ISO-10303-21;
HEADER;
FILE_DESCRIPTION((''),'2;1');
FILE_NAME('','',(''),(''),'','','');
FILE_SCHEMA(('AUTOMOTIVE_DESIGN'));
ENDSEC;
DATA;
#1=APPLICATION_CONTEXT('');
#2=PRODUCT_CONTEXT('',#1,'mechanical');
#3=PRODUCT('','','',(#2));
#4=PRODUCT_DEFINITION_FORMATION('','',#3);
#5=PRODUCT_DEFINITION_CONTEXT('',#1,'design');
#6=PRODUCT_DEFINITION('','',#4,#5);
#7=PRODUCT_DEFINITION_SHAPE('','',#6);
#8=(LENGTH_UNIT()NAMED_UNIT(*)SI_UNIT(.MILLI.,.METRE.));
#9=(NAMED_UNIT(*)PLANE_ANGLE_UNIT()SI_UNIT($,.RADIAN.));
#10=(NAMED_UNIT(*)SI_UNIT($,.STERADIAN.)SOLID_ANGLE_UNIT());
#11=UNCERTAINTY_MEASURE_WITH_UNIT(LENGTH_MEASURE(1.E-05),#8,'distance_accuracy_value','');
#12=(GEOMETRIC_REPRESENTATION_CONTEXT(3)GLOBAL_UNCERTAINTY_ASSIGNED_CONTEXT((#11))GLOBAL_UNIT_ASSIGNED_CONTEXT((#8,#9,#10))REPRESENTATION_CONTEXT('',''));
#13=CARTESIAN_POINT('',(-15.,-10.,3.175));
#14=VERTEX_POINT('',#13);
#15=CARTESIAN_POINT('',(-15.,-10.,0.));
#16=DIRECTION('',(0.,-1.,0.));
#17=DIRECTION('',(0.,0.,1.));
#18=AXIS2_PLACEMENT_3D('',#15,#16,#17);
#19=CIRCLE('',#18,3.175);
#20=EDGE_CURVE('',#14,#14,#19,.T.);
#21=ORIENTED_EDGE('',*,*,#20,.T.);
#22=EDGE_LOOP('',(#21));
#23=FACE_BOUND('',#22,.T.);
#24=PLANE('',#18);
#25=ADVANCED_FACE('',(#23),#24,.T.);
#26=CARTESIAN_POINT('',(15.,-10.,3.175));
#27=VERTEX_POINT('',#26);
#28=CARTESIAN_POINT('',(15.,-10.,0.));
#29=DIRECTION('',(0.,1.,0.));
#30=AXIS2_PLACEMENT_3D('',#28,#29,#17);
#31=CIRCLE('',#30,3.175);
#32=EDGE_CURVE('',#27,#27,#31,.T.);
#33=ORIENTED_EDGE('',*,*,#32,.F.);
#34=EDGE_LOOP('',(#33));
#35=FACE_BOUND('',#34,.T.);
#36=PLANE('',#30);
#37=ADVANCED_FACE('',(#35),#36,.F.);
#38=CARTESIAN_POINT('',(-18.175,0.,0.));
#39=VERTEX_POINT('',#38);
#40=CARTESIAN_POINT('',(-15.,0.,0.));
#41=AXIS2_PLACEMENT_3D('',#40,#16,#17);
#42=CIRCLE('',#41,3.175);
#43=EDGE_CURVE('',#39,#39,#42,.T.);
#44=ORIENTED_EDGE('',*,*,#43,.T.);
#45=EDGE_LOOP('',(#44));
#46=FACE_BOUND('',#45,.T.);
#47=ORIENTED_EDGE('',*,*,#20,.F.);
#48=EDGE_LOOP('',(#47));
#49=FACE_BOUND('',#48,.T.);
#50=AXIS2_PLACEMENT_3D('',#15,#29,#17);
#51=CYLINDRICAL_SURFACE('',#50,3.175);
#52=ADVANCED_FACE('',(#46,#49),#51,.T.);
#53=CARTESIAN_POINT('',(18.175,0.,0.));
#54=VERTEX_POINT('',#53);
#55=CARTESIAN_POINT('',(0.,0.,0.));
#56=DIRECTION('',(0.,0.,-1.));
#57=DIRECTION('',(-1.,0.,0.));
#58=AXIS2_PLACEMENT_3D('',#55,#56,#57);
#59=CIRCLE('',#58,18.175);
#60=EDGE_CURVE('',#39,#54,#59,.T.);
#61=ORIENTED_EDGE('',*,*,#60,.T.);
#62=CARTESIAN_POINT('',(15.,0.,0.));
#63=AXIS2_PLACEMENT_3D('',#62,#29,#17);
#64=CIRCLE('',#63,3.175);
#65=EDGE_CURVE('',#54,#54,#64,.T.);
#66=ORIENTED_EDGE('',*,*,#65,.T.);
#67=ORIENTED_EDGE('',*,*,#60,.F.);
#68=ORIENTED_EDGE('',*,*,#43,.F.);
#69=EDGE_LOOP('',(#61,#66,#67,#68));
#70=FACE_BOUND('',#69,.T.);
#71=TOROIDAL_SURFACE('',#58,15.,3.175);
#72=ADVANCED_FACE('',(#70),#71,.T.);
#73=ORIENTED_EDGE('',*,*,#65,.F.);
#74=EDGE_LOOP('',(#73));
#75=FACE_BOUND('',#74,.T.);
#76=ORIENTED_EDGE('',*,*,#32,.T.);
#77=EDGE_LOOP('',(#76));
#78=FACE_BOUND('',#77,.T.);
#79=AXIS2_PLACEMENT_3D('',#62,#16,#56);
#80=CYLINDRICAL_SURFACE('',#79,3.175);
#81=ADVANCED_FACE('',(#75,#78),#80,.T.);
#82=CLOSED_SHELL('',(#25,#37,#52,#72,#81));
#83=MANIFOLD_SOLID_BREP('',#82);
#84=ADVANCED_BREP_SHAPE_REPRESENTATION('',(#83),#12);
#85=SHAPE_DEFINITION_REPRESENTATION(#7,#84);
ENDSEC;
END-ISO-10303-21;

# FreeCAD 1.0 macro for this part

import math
import FreeCAD as App
import Part
import Sketcher

doc = App.newDocument("Part")
body = doc.addObject("PartDesign::Body", "Body")

sketch1 = body.newObject("Sketcher::SketchObject", "Sketch")
sketch1.AttachmentSupport = (doc.getObject("XZ_Plane"), [""])
sketch1.MapMode = "FlatFace"
sketch1.AttachmentOffset = App.Placement(App.Vector(0, 0, 10), App.Rotation())
sketch1.addGeometry(Part.Circle(App.Vector(-15, 0, 0), App.Vector(0, 0, 1), 3.2), False)
sketch1.addConstraint([
    Sketcher.Constraint("PointOnObject", 0, 3, -1),
    Sketcher.Constraint("Diameter", 0, 6.35),
    Sketcher.Constraint("DistanceX", 0, 3, -1, 1, 15.0),
])

sketch2 = body.newObject("Sketcher::SketchObject", "Sketch001")
sketch2.AttachmentSupport = (doc.getObject("XY_Plane"), [""])
sketch2.MapMode = "FlatFace"
sketch2.addGeometry([
    Part.LineSegment(App.Vector(-15, -10, 0), App.Vector(-15, 0, 0)),
    Part.ArcOfCircle(Part.Circle(App.Vector(0, 0, 0), App.Vector(0, 0, 1), 15), math.radians(0), math.radians(180)),
    Part.LineSegment(App.Vector(15, 0, 0), App.Vector(15, -10, 0)),
], False)
sketch2.addConstraint([
    Sketcher.Constraint("Tangent", 0, 2, 1, 2),
    Sketcher.Constraint("Tangent", 1, 1, 2, 1),
    Sketcher.Constraint("Vertical", 0),
    Sketcher.Constraint("Vertical", 2),
    Sketcher.Constraint("Coincident", 1, 3, -1, 1),
    Sketcher.Constraint("Horizontal", 0, 1, 2, 2),
    Sketcher.Constraint("Radius", 1, 15.0),
    Sketcher.Constraint("DistanceY", 0, 1, 0, 2, 10.0),
])
doc.recompute()

additivepipe = body.newObject("PartDesign::AdditivePipe", "AdditivePipe")
additivepipe.Profile = sketch1
additivepipe.Spine = (sketch2, ["Edge1", "Edge2", "Edge3"])

doc.recompute()
